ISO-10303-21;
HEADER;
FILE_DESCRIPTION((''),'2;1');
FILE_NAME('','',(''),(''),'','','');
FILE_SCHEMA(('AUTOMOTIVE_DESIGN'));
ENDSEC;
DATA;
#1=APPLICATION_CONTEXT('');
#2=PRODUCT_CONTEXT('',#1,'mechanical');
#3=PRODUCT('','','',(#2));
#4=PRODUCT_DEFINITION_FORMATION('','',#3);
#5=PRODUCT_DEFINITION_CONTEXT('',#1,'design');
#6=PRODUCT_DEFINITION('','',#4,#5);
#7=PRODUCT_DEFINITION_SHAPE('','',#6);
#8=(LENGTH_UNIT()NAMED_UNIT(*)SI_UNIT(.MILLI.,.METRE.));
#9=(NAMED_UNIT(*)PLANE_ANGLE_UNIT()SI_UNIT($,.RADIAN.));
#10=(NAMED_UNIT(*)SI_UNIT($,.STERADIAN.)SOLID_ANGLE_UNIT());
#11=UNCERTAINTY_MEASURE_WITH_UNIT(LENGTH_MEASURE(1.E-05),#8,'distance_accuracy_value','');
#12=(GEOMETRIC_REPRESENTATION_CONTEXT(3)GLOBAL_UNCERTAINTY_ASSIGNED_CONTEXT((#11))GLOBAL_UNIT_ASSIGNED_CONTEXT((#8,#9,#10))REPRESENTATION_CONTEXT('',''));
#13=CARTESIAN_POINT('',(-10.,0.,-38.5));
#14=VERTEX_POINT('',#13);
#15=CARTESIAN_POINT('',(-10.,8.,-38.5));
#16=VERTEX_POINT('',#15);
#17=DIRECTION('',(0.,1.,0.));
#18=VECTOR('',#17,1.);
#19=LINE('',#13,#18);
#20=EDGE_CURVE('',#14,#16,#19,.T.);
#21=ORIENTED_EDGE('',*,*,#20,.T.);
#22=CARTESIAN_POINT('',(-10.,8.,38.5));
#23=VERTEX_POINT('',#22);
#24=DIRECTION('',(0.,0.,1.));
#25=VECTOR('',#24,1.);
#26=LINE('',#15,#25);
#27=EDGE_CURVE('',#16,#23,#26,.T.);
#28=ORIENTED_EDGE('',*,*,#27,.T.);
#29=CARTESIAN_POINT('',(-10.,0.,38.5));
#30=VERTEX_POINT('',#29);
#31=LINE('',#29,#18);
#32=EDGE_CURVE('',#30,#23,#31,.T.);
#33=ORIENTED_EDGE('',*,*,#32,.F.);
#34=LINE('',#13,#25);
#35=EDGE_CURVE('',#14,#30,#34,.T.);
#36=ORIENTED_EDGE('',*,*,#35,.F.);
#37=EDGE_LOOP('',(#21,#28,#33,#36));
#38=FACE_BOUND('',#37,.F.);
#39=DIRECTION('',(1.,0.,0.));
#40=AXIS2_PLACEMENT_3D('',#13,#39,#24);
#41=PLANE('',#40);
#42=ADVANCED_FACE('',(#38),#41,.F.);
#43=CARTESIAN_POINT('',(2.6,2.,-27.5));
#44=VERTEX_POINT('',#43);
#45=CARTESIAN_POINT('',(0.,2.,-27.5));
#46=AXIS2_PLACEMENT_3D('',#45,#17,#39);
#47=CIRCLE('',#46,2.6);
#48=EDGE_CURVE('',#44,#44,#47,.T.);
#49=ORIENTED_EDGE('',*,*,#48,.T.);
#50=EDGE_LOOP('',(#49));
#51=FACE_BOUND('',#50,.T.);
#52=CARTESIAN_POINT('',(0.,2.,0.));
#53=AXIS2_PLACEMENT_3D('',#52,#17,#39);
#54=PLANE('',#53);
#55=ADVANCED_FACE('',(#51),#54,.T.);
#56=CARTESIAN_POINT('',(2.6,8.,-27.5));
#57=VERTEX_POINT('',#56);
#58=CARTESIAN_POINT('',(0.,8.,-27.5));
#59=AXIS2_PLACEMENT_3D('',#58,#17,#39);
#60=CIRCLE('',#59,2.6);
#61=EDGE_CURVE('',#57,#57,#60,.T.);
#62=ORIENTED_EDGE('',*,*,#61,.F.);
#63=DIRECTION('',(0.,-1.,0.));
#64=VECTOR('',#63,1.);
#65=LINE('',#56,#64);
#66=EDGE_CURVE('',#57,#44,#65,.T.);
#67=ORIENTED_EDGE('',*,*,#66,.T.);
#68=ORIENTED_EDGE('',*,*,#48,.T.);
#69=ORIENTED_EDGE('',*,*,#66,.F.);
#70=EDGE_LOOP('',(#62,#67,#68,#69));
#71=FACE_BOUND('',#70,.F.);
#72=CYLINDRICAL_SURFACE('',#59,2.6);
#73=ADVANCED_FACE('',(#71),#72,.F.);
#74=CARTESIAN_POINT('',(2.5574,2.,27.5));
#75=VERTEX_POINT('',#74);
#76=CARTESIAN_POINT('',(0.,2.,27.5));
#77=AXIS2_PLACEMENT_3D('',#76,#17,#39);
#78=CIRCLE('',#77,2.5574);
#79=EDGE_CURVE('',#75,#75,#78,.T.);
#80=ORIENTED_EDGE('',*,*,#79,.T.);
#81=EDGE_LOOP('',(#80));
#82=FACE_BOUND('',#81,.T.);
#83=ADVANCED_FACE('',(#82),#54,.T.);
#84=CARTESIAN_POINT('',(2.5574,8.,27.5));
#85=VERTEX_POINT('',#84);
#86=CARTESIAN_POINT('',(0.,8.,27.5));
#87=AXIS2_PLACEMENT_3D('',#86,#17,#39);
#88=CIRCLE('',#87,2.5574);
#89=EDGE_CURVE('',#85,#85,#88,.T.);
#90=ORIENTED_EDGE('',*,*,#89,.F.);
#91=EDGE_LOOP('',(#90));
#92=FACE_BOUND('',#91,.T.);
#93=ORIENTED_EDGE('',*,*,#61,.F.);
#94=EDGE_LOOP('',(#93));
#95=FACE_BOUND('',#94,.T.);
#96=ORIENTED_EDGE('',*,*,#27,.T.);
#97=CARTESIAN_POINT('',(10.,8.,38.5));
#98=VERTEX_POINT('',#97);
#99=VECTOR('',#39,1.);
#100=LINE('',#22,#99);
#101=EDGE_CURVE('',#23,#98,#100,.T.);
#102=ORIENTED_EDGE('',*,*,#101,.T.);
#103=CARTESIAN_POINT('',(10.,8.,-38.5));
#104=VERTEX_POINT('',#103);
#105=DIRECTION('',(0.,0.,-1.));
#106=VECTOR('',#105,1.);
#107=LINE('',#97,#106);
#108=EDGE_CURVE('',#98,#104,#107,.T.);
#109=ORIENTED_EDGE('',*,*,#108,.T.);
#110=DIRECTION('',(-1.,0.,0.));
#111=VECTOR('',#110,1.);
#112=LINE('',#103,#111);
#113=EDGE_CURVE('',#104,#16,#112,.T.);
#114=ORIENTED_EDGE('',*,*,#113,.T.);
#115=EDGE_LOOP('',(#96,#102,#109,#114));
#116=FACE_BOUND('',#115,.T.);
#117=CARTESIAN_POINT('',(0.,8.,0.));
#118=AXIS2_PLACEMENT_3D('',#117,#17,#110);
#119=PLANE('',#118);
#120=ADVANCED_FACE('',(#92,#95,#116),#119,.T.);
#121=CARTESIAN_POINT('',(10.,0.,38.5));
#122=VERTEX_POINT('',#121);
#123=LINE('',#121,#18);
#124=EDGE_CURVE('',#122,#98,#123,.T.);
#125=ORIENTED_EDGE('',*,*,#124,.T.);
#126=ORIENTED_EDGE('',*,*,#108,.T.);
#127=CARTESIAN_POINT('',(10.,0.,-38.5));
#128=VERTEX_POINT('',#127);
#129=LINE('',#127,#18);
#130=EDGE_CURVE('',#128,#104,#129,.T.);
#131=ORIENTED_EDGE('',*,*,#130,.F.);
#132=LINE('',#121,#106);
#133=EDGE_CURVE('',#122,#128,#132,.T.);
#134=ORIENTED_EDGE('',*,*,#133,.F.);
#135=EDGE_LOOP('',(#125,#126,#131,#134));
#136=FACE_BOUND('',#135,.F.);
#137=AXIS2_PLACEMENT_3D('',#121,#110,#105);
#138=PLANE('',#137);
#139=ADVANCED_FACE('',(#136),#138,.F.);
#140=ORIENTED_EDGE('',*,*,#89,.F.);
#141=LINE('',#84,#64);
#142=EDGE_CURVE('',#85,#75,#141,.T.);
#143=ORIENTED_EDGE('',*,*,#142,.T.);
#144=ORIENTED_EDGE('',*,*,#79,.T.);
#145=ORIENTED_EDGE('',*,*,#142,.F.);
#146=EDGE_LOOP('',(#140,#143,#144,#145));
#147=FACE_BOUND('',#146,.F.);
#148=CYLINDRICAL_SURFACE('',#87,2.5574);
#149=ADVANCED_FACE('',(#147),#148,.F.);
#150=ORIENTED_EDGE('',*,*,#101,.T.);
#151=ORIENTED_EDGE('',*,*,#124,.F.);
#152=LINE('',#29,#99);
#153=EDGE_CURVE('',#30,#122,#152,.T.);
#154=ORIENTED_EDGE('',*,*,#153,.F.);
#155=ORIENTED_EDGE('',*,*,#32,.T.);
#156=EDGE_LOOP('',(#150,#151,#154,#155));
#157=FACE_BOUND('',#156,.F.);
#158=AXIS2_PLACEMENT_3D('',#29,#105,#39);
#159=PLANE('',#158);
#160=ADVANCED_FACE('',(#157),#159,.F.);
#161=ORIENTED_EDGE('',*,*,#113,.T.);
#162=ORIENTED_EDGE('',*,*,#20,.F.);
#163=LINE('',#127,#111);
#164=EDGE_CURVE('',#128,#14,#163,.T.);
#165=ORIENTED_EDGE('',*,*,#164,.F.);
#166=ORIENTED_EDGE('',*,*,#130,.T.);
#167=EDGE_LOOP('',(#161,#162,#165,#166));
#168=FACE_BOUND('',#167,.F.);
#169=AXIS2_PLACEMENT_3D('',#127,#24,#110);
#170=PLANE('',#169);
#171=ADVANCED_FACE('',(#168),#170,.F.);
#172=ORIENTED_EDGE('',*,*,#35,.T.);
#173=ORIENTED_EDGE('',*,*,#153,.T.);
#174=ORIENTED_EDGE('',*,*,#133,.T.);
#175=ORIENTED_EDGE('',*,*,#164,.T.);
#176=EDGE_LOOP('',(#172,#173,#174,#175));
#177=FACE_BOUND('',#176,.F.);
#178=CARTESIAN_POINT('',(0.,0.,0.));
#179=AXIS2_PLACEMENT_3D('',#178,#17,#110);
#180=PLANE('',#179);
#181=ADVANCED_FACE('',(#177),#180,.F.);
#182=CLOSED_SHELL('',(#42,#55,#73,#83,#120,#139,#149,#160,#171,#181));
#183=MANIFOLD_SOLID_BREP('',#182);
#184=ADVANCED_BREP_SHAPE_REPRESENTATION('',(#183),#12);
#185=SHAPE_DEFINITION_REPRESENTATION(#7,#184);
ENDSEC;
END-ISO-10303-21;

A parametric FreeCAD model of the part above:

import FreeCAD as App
import Part
import Sketcher
Q = App.Units.Quantity


def add_polygon(sketch, points):
    """Adds a closed chain of lines whose ends are joined by coincident constraints."""
    first, n = sketch.GeometryCount, len(points)
    for a, b in zip(points, points[1:] + points[:1]):
        sketch.addGeometry(Part.LineSegment(App.Vector(*a, 0), App.Vector(*b, 0)), False)
    for i in range(n):
        sketch.addConstraint(Sketcher.Constraint("Coincident", first + i, 2, first + (i + 1) % n, 1))

doc = App.newDocument("Part")
body = doc.addObject("PartDesign::Body", "Body")

# Sketch on XZ plane
sketch1 = doc.addObject("Sketcher::SketchObject", "Sketch")
body.addObject(sketch1)
sketch1.AttachmentSupport = (doc.XZ_Plane, [""])
sketch1.MapMode = "FlatFace"
add_polygon(sketch1, [(-10, -38), (-10, 38), (10, 38), (10, -38)])  # lines 0-3
sketch1.addConstraint(Sketcher.Constraint("Vertical", 0))
sketch1.addConstraint(Sketcher.Constraint("Horizontal", 1))
sketch1.addConstraint(Sketcher.Constraint("Vertical", 2))
sketch1.addConstraint(Sketcher.Constraint("Horizontal", 3))
sketch1.addConstraint(Sketcher.Constraint("Symmetric", 0, 2, 2, 2, -1, 1))
sketch1.addConstraint(Sketcher.Constraint("DistanceX", 1, 1, 1, 2, Q("20 mm")))
sketch1.addConstraint(Sketcher.Constraint("DistanceY", 0, 1, 0, 2, Q("77 mm")))
pad1 = doc.addObject("PartDesign::Pad", "Pad")
body.addObject(pad1)
pad1.Profile = sketch1
pad1.Length = 8
pad1.Reversed = True

# Sketch on XZ plane
sketch2 = doc.addObject("Sketcher::SketchObject", "Sketch001")
body.addObject(sketch2)
sketch2.AttachmentSupport = (doc.XZ_Plane, [""])
sketch2.MapMode = "FlatFace"
sketch2.AttachmentOffset = App.Placement(App.Vector(0, 0, -8), App.Rotation())
sketch2.addGeometry(Part.Circle(App.Vector(0, 27.5, 0), App.Vector(0, 0, 1), 2.6), False)
sketch2.addGeometry(Part.Circle(App.Vector(0, -27.5, 0), App.Vector(0, 0, 1), 2.6), False)
sketch2.addConstraint(Sketcher.Constraint("Symmetric", 0, 3, 1, 3, -1, 1))
sketch2.addConstraint(Sketcher.Constraint("PointOnObject", 0, 3, -2))
sketch2.addConstraint(Sketcher.Constraint("Diameter", 1, Q("5.2 mm")))
sketch2.addConstraint(Sketcher.Constraint("DistanceY", 1, 3, 0, 3, Q("55 mm")))
sketch2.addConstraint(Sketcher.Constraint("Diameter", 0, Q("5.1148 mm")))
pocket1 = doc.addObject("PartDesign::Pocket", "Pocket")
body.addObject(pocket1)
pocket1.Profile = sketch2
pocket1.Length = 6
pocket1.Reversed = True

doc.recompute()
